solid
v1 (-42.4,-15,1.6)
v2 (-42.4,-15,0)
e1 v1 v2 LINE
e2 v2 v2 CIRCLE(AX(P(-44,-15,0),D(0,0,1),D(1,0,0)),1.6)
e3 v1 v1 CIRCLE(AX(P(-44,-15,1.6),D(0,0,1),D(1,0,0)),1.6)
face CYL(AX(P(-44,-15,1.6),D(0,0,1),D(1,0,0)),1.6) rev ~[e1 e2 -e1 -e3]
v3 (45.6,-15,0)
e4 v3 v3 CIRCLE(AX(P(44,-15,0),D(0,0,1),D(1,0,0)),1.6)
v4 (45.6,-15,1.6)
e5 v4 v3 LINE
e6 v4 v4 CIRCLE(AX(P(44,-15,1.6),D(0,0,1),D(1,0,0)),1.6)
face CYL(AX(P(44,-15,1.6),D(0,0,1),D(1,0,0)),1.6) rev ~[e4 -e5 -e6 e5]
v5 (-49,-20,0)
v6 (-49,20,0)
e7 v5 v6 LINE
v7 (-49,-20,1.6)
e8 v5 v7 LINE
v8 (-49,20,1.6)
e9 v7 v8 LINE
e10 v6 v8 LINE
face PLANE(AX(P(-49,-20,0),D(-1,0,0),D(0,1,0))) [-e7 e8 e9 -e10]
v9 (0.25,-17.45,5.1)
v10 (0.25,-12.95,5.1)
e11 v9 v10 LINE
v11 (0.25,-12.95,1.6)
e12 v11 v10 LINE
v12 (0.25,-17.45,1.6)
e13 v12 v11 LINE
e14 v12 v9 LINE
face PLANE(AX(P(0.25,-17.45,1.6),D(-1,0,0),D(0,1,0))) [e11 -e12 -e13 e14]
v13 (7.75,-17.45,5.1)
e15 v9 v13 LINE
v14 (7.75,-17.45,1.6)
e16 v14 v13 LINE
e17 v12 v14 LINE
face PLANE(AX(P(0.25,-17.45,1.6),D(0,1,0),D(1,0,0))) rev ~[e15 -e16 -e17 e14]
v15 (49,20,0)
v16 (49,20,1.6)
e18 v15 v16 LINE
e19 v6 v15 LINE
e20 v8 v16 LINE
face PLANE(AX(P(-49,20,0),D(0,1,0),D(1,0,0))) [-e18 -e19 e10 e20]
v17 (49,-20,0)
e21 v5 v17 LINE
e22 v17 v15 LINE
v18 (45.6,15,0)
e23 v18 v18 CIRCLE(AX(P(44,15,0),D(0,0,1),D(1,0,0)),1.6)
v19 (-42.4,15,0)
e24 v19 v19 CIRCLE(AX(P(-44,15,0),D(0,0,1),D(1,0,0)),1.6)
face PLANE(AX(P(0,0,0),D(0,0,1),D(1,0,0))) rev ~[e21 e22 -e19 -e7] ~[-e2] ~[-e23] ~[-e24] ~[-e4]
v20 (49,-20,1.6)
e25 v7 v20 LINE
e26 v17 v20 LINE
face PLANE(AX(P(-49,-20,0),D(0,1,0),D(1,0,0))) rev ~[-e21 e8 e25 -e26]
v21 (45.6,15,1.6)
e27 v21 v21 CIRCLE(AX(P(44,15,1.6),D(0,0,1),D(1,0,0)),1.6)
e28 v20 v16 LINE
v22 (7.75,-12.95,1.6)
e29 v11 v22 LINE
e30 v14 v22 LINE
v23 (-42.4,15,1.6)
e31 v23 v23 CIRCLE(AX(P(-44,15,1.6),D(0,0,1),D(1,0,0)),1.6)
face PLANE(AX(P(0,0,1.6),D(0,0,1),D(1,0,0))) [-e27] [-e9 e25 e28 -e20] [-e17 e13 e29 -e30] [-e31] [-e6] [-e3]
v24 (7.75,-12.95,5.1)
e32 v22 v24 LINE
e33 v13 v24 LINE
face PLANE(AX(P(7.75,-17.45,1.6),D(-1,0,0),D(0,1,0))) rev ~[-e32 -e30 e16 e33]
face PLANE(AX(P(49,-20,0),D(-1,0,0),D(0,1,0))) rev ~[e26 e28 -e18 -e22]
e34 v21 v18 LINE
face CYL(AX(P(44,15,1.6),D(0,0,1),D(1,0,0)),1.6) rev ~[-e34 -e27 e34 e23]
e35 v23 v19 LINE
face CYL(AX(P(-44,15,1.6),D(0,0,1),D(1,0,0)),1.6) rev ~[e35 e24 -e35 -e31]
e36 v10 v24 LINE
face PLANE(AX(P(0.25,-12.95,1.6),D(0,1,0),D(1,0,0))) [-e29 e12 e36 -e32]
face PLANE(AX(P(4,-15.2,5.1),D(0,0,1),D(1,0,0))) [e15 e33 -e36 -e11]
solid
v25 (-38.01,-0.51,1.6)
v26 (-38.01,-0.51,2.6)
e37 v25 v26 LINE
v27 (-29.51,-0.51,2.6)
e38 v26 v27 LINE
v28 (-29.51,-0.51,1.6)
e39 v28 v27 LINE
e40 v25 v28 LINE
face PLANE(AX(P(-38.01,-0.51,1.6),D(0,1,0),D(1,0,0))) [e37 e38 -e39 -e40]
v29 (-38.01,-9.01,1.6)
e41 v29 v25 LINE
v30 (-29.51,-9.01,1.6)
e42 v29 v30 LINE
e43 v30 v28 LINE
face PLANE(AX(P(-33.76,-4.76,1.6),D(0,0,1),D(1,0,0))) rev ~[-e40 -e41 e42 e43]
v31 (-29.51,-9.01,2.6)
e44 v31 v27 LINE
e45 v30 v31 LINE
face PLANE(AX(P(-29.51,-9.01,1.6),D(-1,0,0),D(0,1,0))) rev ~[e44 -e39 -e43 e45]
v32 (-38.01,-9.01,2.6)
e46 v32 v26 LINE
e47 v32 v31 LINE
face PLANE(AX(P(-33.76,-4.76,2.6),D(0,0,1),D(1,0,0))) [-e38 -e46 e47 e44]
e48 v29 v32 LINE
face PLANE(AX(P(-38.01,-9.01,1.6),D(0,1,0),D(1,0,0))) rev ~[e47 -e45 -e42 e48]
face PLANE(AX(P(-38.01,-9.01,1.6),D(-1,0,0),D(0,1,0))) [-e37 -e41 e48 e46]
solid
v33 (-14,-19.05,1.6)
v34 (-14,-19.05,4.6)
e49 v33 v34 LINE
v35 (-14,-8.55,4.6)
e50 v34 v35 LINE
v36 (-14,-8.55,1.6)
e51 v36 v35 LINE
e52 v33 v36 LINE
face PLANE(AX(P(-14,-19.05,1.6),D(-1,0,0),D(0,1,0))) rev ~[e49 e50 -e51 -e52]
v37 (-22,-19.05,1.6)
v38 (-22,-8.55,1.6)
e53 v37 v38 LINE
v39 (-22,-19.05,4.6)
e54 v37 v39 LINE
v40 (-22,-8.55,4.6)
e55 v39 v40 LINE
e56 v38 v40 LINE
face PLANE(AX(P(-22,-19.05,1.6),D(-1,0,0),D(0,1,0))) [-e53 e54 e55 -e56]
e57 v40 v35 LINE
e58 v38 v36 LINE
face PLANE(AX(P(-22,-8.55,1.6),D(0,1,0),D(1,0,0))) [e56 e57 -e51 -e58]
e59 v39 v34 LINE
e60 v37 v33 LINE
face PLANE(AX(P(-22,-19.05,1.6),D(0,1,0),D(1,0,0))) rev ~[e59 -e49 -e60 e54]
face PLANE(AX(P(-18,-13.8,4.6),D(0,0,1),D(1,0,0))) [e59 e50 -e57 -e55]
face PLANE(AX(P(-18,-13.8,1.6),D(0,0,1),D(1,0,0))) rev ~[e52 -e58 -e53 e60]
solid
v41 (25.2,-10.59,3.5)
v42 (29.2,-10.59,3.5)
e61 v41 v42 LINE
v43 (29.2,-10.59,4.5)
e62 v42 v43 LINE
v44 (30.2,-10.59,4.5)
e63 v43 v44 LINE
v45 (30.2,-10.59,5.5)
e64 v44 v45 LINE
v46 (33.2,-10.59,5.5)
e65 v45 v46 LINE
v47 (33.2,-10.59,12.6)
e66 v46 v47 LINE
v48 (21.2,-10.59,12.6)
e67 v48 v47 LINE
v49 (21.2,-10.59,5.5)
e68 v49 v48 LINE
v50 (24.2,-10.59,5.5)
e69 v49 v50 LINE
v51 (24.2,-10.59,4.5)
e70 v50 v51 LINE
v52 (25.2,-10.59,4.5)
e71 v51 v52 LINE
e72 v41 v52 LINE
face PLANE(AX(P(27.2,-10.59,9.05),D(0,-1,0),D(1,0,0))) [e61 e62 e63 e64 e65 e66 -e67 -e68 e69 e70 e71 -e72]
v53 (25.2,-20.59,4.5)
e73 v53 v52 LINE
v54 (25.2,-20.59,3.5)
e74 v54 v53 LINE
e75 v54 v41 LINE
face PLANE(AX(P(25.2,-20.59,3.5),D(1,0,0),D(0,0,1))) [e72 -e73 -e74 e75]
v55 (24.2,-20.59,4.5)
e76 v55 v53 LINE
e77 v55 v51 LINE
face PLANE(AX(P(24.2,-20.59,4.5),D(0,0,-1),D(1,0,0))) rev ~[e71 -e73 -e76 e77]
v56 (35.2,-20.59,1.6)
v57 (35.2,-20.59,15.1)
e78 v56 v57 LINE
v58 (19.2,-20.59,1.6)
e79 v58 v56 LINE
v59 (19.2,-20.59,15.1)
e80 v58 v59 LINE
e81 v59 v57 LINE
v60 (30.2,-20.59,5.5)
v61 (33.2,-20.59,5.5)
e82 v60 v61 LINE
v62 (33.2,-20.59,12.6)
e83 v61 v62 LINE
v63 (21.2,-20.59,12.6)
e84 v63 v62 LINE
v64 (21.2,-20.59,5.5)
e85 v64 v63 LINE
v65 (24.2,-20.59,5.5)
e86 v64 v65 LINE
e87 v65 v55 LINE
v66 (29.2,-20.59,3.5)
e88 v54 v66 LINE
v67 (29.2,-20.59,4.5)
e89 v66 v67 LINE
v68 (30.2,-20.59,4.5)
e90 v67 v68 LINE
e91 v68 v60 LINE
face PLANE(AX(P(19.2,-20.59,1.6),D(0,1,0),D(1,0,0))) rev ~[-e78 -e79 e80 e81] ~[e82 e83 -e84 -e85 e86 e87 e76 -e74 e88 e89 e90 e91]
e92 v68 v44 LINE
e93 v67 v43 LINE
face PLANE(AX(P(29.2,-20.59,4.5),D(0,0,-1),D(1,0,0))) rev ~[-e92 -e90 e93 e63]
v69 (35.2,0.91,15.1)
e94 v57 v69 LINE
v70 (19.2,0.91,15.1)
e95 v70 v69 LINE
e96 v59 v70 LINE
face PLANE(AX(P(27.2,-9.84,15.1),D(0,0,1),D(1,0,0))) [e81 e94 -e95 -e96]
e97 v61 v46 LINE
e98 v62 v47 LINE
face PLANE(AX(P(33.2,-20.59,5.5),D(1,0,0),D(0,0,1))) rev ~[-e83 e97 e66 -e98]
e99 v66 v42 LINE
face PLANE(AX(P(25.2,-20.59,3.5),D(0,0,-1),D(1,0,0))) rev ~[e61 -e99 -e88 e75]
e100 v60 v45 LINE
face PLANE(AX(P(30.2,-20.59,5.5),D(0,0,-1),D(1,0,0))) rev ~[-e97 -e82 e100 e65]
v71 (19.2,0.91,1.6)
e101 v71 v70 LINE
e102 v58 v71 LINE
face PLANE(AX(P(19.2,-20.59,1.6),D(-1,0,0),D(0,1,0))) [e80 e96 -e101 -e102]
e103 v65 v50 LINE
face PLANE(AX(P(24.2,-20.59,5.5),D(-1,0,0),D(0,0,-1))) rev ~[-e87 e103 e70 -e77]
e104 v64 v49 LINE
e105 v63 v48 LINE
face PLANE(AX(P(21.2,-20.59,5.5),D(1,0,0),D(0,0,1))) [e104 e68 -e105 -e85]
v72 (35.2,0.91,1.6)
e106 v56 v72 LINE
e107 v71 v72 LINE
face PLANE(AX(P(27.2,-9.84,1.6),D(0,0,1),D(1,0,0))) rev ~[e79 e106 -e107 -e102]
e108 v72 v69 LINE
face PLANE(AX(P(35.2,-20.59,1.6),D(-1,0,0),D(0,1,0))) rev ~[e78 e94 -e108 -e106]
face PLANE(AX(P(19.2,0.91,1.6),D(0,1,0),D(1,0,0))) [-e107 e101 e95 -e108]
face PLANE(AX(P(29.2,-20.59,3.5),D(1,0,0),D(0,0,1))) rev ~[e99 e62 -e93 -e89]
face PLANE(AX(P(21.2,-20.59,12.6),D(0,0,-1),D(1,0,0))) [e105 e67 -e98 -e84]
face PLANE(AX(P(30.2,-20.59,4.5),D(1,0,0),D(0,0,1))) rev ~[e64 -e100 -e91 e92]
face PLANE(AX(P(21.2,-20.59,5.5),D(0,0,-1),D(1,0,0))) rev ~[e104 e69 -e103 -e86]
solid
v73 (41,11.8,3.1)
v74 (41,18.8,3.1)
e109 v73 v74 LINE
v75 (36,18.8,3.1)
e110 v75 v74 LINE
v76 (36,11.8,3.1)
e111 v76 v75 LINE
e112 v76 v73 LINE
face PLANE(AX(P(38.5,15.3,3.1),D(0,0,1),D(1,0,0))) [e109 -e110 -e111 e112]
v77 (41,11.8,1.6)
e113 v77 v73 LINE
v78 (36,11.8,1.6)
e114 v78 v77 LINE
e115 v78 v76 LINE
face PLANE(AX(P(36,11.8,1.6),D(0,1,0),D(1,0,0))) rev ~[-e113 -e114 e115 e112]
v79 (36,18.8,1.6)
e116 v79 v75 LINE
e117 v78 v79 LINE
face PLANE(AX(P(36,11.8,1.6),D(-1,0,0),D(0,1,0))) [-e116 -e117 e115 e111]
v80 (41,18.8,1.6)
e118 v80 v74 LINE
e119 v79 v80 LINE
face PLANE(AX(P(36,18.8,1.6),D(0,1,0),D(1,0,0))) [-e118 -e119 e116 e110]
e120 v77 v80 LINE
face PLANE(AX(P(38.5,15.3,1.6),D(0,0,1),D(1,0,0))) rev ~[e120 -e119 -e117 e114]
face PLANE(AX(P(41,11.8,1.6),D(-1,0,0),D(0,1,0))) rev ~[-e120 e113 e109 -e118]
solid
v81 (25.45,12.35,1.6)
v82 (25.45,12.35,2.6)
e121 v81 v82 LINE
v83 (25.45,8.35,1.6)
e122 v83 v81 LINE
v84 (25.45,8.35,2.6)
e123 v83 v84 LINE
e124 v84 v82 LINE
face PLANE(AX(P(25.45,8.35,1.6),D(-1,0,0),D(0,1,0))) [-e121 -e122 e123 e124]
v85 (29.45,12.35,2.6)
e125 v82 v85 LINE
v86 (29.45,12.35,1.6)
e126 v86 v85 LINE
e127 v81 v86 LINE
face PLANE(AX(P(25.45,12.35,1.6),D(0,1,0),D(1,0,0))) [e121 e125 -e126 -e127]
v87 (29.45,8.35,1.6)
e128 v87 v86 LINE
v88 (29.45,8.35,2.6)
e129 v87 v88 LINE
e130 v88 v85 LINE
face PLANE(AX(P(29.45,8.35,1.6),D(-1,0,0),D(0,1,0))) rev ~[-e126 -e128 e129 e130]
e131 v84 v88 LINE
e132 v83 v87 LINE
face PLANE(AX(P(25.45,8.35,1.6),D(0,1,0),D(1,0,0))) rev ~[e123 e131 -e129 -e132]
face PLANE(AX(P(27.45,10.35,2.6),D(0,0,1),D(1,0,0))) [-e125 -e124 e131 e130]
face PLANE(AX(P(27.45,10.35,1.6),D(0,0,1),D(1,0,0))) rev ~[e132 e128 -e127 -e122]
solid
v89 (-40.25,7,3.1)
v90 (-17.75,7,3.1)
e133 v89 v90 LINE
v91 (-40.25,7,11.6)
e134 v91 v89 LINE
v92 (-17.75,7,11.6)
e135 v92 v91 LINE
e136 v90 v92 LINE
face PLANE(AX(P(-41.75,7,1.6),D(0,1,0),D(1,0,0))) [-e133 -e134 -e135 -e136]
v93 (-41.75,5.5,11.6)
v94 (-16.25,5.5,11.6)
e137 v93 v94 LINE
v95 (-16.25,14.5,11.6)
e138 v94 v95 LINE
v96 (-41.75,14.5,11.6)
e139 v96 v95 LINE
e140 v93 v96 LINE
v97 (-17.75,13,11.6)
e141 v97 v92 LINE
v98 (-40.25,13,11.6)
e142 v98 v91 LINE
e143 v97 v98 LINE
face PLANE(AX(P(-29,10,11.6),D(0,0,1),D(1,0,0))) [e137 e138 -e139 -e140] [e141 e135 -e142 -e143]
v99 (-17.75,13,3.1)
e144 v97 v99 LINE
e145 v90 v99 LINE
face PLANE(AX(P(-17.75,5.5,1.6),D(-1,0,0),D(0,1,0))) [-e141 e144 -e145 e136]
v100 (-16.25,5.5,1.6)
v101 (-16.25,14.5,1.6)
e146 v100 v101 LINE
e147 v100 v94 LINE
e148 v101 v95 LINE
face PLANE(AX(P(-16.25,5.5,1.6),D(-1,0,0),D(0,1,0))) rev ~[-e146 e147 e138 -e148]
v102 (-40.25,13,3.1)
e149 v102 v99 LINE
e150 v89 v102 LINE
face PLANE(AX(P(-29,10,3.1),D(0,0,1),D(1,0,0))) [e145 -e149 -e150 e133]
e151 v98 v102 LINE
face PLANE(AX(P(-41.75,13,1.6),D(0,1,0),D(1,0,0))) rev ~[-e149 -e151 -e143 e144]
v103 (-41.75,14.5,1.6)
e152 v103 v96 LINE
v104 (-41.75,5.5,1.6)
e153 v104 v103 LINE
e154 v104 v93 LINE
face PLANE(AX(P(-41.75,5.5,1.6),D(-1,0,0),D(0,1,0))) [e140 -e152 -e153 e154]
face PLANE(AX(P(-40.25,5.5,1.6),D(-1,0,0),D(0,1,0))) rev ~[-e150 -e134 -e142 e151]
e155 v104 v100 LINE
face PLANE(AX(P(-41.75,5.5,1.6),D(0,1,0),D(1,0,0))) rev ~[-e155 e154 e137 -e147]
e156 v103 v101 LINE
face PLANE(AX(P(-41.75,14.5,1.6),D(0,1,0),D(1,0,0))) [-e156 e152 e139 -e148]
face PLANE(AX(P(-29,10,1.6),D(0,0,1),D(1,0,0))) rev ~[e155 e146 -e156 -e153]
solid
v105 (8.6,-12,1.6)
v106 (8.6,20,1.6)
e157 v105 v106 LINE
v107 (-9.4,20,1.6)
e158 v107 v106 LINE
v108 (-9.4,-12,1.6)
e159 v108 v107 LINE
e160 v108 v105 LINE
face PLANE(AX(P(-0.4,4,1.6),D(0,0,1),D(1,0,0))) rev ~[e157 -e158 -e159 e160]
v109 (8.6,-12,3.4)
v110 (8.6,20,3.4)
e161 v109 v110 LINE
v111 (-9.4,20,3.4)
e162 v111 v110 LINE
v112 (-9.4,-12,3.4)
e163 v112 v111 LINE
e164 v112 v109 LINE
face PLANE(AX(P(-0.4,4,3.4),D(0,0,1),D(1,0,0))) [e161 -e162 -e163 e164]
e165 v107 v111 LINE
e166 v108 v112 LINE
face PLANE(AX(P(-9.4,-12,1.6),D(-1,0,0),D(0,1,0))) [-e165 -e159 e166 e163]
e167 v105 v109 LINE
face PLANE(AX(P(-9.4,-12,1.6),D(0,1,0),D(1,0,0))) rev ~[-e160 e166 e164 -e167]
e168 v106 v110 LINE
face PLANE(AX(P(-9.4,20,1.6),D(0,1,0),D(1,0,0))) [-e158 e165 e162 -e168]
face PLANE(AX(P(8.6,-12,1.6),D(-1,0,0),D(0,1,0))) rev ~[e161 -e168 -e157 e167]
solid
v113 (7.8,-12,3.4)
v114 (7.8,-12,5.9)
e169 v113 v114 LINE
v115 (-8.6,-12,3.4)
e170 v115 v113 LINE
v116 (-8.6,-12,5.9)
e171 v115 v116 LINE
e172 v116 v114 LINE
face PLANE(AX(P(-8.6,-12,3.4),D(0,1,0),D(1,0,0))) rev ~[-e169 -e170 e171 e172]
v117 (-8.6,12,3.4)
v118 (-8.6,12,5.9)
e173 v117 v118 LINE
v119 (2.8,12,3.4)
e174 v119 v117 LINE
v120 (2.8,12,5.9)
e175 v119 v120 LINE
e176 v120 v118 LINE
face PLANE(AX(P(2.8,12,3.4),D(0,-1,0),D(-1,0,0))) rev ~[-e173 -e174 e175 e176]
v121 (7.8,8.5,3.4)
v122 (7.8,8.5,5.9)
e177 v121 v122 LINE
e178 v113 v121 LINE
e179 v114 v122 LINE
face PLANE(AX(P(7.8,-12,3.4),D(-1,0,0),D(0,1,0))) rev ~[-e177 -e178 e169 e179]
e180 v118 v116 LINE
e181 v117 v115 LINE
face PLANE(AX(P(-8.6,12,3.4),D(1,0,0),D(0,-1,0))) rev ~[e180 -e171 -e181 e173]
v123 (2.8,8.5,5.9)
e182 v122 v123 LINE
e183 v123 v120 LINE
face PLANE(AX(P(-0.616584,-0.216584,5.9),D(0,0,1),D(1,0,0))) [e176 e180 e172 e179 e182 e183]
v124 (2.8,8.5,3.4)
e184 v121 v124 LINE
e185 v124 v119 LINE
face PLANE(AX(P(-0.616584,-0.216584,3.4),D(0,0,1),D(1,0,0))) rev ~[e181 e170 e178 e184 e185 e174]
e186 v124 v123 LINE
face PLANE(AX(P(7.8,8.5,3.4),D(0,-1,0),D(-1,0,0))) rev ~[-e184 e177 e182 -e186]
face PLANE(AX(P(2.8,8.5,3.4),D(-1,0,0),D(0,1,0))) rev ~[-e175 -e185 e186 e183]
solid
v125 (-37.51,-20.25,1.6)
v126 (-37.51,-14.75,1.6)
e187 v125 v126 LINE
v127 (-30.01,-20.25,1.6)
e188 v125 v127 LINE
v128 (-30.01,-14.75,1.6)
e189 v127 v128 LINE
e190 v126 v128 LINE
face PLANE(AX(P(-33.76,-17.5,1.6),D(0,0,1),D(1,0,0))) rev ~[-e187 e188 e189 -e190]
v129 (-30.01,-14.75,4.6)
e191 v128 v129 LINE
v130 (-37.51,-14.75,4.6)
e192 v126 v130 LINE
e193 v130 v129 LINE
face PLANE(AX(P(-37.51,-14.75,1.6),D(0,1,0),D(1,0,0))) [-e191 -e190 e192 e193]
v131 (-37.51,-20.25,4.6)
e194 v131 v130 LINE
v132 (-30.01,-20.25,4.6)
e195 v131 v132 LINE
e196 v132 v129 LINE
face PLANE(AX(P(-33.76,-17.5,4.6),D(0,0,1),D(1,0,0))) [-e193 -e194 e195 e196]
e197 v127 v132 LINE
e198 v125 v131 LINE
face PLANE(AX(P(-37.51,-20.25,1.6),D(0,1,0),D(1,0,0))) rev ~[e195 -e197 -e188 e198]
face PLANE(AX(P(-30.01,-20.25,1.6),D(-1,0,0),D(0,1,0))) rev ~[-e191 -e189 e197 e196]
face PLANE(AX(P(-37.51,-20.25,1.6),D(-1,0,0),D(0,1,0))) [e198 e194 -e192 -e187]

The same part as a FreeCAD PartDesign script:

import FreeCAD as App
import Part
import Sketcher


def faces_at(feature, points):
    """Names of the faces that lie closest to the given points."""
    faces = feature.Shape.Faces
    near = lambda p: min(range(len(faces)), key=lambda i: faces[i].distToShape(Part.Vertex(*p))[0])
    return sorted({f"Face{near(p) + 1}" for p in points})

doc = App.newDocument("Part")
params = doc.addObject("Spreadsheet::Sheet", "Params")
for row, (alias, value) in enumerate([
    ("sketch1_width", "98 mm"),
    ("sketch1_height", "40 mm"),
    ("pad1_length", "1.6 mm"),
    ("sketch2_diameter", "3.2 mm"),
    ("sketch3_width", "7.5 mm"),
    ("sketch3_height", "4.5 mm"),
    ("pad2_length", "3.5 mm"),
    ("sketch4_height", "9 mm"),
    ("sketch4_width", "25.5 mm"),
    ("pad3_length", "10 mm"),
    ("thickness_wall", "1.5 mm"),
    ("sketch5_width", "8.5 mm"),
    ("pad4_length", "1 mm"),
    ("sketch6_width", "7.5 mm"),
    ("sketch6_height", "5.5 mm"),
    ("pad5_length", "3 mm"),
    ("sketch7_width", "8 mm"),
    ("sketch7_height", "10.5 mm"),
    ("pad6_length", "3 mm"),
    ("sketch8_width", "18 mm"),
    ("sketch8_height", "32 mm"),
    ("pad7_length", "1.8 mm"),
    ("sketch9_width", "5 mm"),
    ("sketch9_height", "24 mm"),
    ("sketch9_width2", "16.4 mm"),
    ("sketch9_height2", "20.5 mm"),
    ("pad8_length", "2.5 mm"),
    ("sketch10_width", "16 mm"),
    ("sketch10_height", "21.5 mm"),
    ("pad9_length", "13.5 mm"),
    ("sketch11_width", "3 mm"),
    ("sketch11_width2", "1 mm"),
    ("sketch11_width3", "4 mm"),
    ("sketch11_height", "7.1 mm"),
    ("pocket2_length", "10 mm"),
    ("sketch12_width", "4 mm"),
    ("pad10_length", "1 mm"),
    ("sketch13_width", "5 mm"),
    ("sketch13_height", "7 mm"),
    ("pad11_length", "1.5 mm"),
], start=1):
    params.set(f"A{row}", alias)
    params.set(f"B{row}", "=" + value)
    params.setAlias(f"B{row}", alias)

body = doc.addObject("PartDesign::Body", "Body")

# Sketch on XY plane
sketch1 = body.newObject("Sketcher::SketchObject", "Sketch")
sketch1.AttachmentSupport = (doc.getObject("XY_Plane"), [""])
sketch1.MapMode = "FlatFace"
sketch1.addGeometry([
    Part.LineSegment(App.Vector(-49, 20, 0), App.Vector(-49, -20, 0)),
    Part.LineSegment(App.Vector(-49, -20, 0), App.Vector(49, -20, 0)),
    Part.LineSegment(App.Vector(49, -20, 0), App.Vector(49, 20, 0)),
    Part.LineSegment(App.Vector(49, 20, 0), App.Vector(-49, 20, 0)),
], False)
sketch1.addConstraint([
    Sketcher.Constraint("Coincident", 0, 2, 1, 1),
    Sketcher.Constraint("Coincident", 1, 2, 2, 1),
    Sketcher.Constraint("Coincident", 2, 2, 3, 1),
    Sketcher.Constraint("Coincident", 3, 2, 0, 1),
    Sketcher.Constraint("Vertical", 0),
    Sketcher.Constraint("Horizontal", 1),
    Sketcher.Constraint("Vertical", 2),
    Sketcher.Constraint("Horizontal", 3),
    Sketcher.Constraint("Symmetric", 0, 2, 2, 2, -1, 1),
    Sketcher.Constraint("DistanceX", 1, 1, 1, 2, 98.0),
    Sketcher.Constraint("DistanceY", 0, 2, 0, 1, 40.0),
])
sketch1.setExpression("Constraints[9]", "Params.sketch1_width")
sketch1.setExpression("Constraints[10]", "Params.sketch1_height")
pad1 = body.newObject("PartDesign::Pad", "Pad")
pad1.Profile = sketch1
pad1.setExpression("Length", "Params.pad1_length")

# Sketch on XY plane
sketch2 = body.newObject("Sketcher::SketchObject", "Sketch001")
sketch2.AttachmentSupport = (doc.getObject("XY_Plane"), [""])
sketch2.MapMode = "FlatFace"
sketch2.AttachmentOffset = App.Placement(App.Vector(0, 0, 1.6), App.Rotation())
sketch2.addGeometry([
    Part.Circle(App.Vector(-44, -15, 0), App.Vector(0, 0, 1), 1.6),
    Part.Circle(App.Vector(-44, 15, 0), App.Vector(0, 0, 1), 1.6),
    Part.Circle(App.Vector(44, 15, 0), App.Vector(0, 0, 1), 1.6),
    Part.Circle(App.Vector(44, -15, 0), App.Vector(0, 0, 1), 1.6),
], False)
sketch2.addConstraint([
    Sketcher.Constraint("Equal", 0, 1),
    Sketcher.Constraint("Equal", 1, 2),
    Sketcher.Constraint("Equal", 2, 3),
    Sketcher.Constraint("Symmetric", 0, 3, 2, 3, -1, 1),
    Sketcher.Constraint("Symmetric", 1, 3, 3, 3, -1, 1),
    Sketcher.Constraint("Symmetric", 1, 3, 2, 3, -2),
    Sketcher.Constraint("Diameter", 0, 3.2),
    Sketcher.Constraint("DistanceX", 0, 3, -1, 1, 44.0),
    Sketcher.Constraint("DistanceY", 0, 3, -1, 1, 15.0),
])
sketch2.setExpression("Constraints[6]", "Params.sketch2_diameter")
pocket1 = body.newObject("PartDesign::Pocket", "Pocket")
pocket1.Profile = sketch2
pocket1.Type = "ThroughAll"
pocket1.Midplane = True

# Sketch on XY plane
sketch3 = body.newObject("Sketcher::SketchObject", "Sketch002")
sketch3.AttachmentSupport = (doc.getObject("XY_Plane"), [""])
sketch3.MapMode = "FlatFace"
sketch3.AttachmentOffset = App.Placement(App.Vector(0, 0, 1.6), App.Rotation())
sketch3.addGeometry([
    Part.LineSegment(App.Vector(0.2, -12.9, 0), App.Vector(0.2, -17.4, 0)),
    Part.LineSegment(App.Vector(0.2, -17.4, 0), App.Vector(7.8, -17.4, 0)),
    Part.LineSegment(App.Vector(7.8, -17.4, 0), App.Vector(7.8, -12.9, 0)),
    Part.LineSegment(App.Vector(7.8, -12.9, 0), App.Vector(0.2, -12.9, 0)),
], False)
sketch3.addConstraint([
    Sketcher.Constraint("Coincident", 0, 2, 1, 1),
    Sketcher.Constraint("Coincident", 1, 2, 2, 1),
    Sketcher.Constraint("Coincident", 2, 2, 3, 1),
    Sketcher.Constraint("Coincident", 3, 2, 0, 1),
    Sketcher.Constraint("Vertical", 0),
    Sketcher.Constraint("Horizontal", 1),
    Sketcher.Constraint("Vertical", 2),
    Sketcher.Constraint("Horizontal", 3),
    Sketcher.Constraint("DistanceX", 1, 1, 1, 2, 7.5),
    Sketcher.Constraint("DistanceY", 0, 2, 0, 1, 4.5),
    Sketcher.Constraint("DistanceX", -1, 1, 0, 2, 0.25),
    Sketcher.Constraint("DistanceY", 0, 2, -1, 1, 17.45),
])
sketch3.setExpression("Constraints[8]", "Params.sketch3_width")
sketch3.setExpression("Constraints[9]", "Params.sketch3_height")
pad2 = body.newObject("PartDesign::Pad", "Pad001")
pad2.Profile = sketch3
pad2.setExpression("Length", "Params.pad2_length")
body2 = doc.addObject("PartDesign::Body", "Body001")

# Sketch on XY plane
sketch4 = body2.newObject("Sketcher::SketchObject", "Sketch003")
sketch4.AttachmentSupport = (doc.getObject("XY_Plane001"), [""])
sketch4.MapMode = "FlatFace"
sketch4.AttachmentOffset = App.Placement(App.Vector(0, 0, 1.6), App.Rotation())
sketch4.addGeometry([
    Part.LineSegment(App.Vector(-42, 14, 0), App.Vector(-42, 6, 0)),
    Part.LineSegment(App.Vector(-42, 6, 0), App.Vector(-16, 6, 0)),
    Part.LineSegment(App.Vector(-16, 6, 0), App.Vector(-16, 14, 0)),
    Part.LineSegment(App.Vector(-16, 14, 0), App.Vector(-42, 14, 0)),
], False)
sketch4.addConstraint([
    Sketcher.Constraint("Coincident", 0, 2, 1, 1),
    Sketcher.Constraint("Coincident", 1, 2, 2, 1),
    Sketcher.Constraint("Coincident", 2, 2, 3, 1),
    Sketcher.Constraint("Coincident", 3, 2, 0, 1),
    Sketcher.Constraint("Vertical", 0),
    Sketcher.Constraint("Horizontal", 1),
    Sketcher.Constraint("Vertical", 2),
    Sketcher.Constraint("Horizontal", 3),
    Sketcher.Constraint("DistanceY", 0, 2, 0, 1, 9.0),
    Sketcher.Constraint("DistanceX", 1, 1, 1, 2, 25.5),
    Sketcher.Constraint("DistanceY", -1, 1, 0, 2, 5.5),
    Sketcher.Constraint("DistanceX", 0, 2, -1, 1, 41.75),
])
sketch4.setExpression("Constraints[8]", "Params.sketch4_height")
sketch4.setExpression("Constraints[9]", "Params.sketch4_width")
pad3 = body2.newObject("PartDesign::Pad", "Pad002")
pad3.Profile = sketch4
pad3.setExpression("Length", "Params.pad3_length")
doc.recompute()

thickness = body2.newObject("PartDesign::Thickness", "Thickness")
thickness.Base = (pad3, faces_at(pad3, [(-29, 10, 11.6)]))
thickness.setExpression("Value", "Params.thickness_wall")
thickness.Reversed = True
thickness.Join = "Intersection"
body3 = doc.addObject("PartDesign::Body", "Body002")

# Sketch on XY plane
sketch5 = body3.newObject("Sketcher::SketchObject", "Sketch004")
sketch5.AttachmentSupport = (doc.getObject("XY_Plane002"), [""])
sketch5.MapMode = "FlatFace"
sketch5.AttachmentOffset = App.Placement(App.Vector(0, 0, 1.6), App.Rotation())
sketch5.addGeometry([
    Part.LineSegment(App.Vector(-38, -1, 0), App.Vector(-38, -9, 0)),
    Part.LineSegment(App.Vector(-38, -9, 0), App.Vector(-30, -9, 0)),
    Part.LineSegment(App.Vector(-30, -9, 0), App.Vector(-30, -1, 0)),
    Part.LineSegment(App.Vector(-30, -1, 0), App.Vector(-38, -1, 0)),
], False)
sketch5.addConstraint([
    Sketcher.Constraint("Coincident", 0, 2, 1, 1),
    Sketcher.Constraint("Coincident", 1, 2, 2, 1),
    Sketcher.Constraint("Coincident", 2, 2, 3, 1),
    Sketcher.Constraint("Coincident", 3, 2, 0, 1),
    Sketcher.Constraint("Vertical", 0),
    Sketcher.Constraint("Horizontal", 1),
    Sketcher.Constraint("Vertical", 2),
    Sketcher.Constraint("Horizontal", 3),
    Sketcher.Constraint("Equal", 3, 0),
    Sketcher.Constraint("DistanceX", 1, 1, 1, 2, 8.5),
    Sketcher.Constraint("DistanceX", 0, 2, -1, 1, 38.01),
    Sketcher.Constraint("DistanceY", 0, 2, -1, 1, 9.01),
])
sketch5.setExpression("Constraints[9]", "Params.sketch5_width")
pad4 = body3.newObject("PartDesign::Pad", "Pad003")
pad4.Profile = sketch5
pad4.setExpression("Length", "Params.pad4_length")
body4 = doc.addObject("PartDesign::Body", "Body003")

# Sketch on XY plane
sketch6 = body4.newObject("Sketcher::SketchObject", "Sketch005")
sketch6.AttachmentSupport = (doc.getObject("XY_Plane003"), [""])
sketch6.MapMode = "FlatFace"
sketch6.AttachmentOffset = App.Placement(App.Vector(0, 0, 1.6), App.Rotation())
sketch6.addGeometry([
    Part.LineSegment(App.Vector(-38, -15, 0), App.Vector(-38, -20, 0)),
    Part.LineSegment(App.Vector(-38, -20, 0), App.Vector(-30, -20, 0)),
    Part.LineSegment(App.Vector(-30, -20, 0), App.Vector(-30, -15, 0)),
    Part.LineSegment(App.Vector(-30, -15, 0), App.Vector(-38, -15, 0)),
], False)
sketch6.addConstraint([
    Sketcher.Constraint("Coincident", 0, 2, 1, 1),
    Sketcher.Constraint("Coincident", 1, 2, 2, 1),
    Sketcher.Constraint("Coincident", 2, 2, 3, 1),
    Sketcher.Constraint("Coincident", 3, 2, 0, 1),
    Sketcher.Constraint("Vertical", 0),
    Sketcher.Constraint("Horizontal", 1),
    Sketcher.Constraint("Vertical", 2),
    Sketcher.Constraint("Horizontal", 3),
    Sketcher.Constraint("DistanceX", 1, 1, 1, 2, 7.5),
    Sketcher.Constraint("DistanceY", 0, 2, 0, 1, 5.5),
    Sketcher.Constraint("DistanceX", 0, 2, -1, 1, 37.51),
    Sketcher.Constraint("DistanceY", 0, 2, -1, 1, 20.25),
])
sketch6.setExpression("Constraints[8]", "Params.sketch6_width")
sketch6.setExpression("Constraints[9]", "Params.sketch6_height")
pad5 = body4.newObject("PartDesign::Pad", "Pad004")
pad5.Profile = sketch6
pad5.setExpression("Length", "Params.pad5_length")
body5 = doc.addObject("PartDesign::Body", "Body004")

# Sketch on XY plane
sketch7 = body5.newObject("Sketcher::SketchObject", "Sketch006")
sketch7.AttachmentSupport = (doc.getObject("XY_Plane004"), [""])
sketch7.MapMode = "FlatFace"
sketch7.AttachmentOffset = App.Placement(App.Vector(0, 0, 1.6), App.Rotation())
sketch7.addGeometry([
    Part.LineSegment(App.Vector(-22, -9, 0), App.Vector(-22, -19, 0)),
    Part.LineSegment(App.Vector(-22, -19, 0), App.Vector(-14, -19, 0)),
    Part.LineSegment(App.Vector(-14, -19, 0), App.Vector(-14, -9, 0)),
    Part.LineSegment(App.Vector(-14, -9, 0), App.Vector(-22, -9, 0)),
], False)
sketch7.addConstraint([
    Sketcher.Constraint("Coincident", 0, 2, 1, 1),
    Sketcher.Constraint("Coincident", 1, 2, 2, 1),
    Sketcher.Constraint("Coincident", 2, 2, 3, 1),
    Sketcher.Constraint("Coincident", 3, 2, 0, 1),
    Sketcher.Constraint("Vertical", 0),
    Sketcher.Constraint("Horizontal", 1),
    Sketcher.Constraint("Vertical", 2),
    Sketcher.Constraint("Horizontal", 3),
    Sketcher.Constraint("DistanceX", 1, 1, 1, 2, 8.0),
    Sketcher.Constraint("DistanceY", 0, 2, 0, 1, 10.5),
    Sketcher.Constraint("DistanceX", 0, 2, -1, 1, 22.0),
    Sketcher.Constraint("DistanceY", 0, 2, -1, 1, 19.05),
])
sketch7.setExpression("Constraints[8]", "Params.sketch7_width")
sketch7.setExpression("Constraints[9]", "Params.sketch7_height")
pad6 = body5.newObject("PartDesign::Pad", "Pad005")
pad6.Profile = sketch7
pad6.setExpression("Length", "Params.pad6_length")
body6 = doc.addObject("PartDesign::Body", "Body005")

# Sketch on XY plane
sketch8 = body6.newObject("Sketcher::SketchObject", "Sketch007")
sketch8.AttachmentSupport = (doc.getObject("XY_Plane005"), [""])
sketch8.MapMode = "FlatFace"
sketch8.AttachmentOffset = App.Placement(App.Vector(0, 0, 1.6), App.Rotation())
sketch8.addGeometry([
    Part.LineSegment(App.Vector(-9, 20, 0), App.Vector(-9, -12, 0)),
    Part.LineSegment(App.Vector(-9, -12, 0), App.Vector(9, -12, 0)),
    Part.LineSegment(App.Vector(9, -12, 0), App.Vector(9, 20, 0)),
    Part.LineSegment(App.Vector(9, 20, 0), App.Vector(-9, 20, 0)),
], False)
sketch8.addConstraint([
    Sketcher.Constraint("Coincident", 0, 2, 1, 1),
    Sketcher.Constraint("Coincident", 1, 2, 2, 1),
    Sketcher.Constraint("Coincident", 2, 2, 3, 1),
    Sketcher.Constraint("Coincident", 3, 2, 0, 1),
    Sketcher.Constraint("Vertical", 0),
    Sketcher.Constraint("Horizontal", 1),
    Sketcher.Constraint("Vertical", 2),
    Sketcher.Constraint("Horizontal", 3),
    Sketcher.Constraint("DistanceX", 1, 1, 1, 2, 18.0),
    Sketcher.Constraint("DistanceY", 0, 2, 0, 1, 32.0),
    Sketcher.Constraint("DistanceY", 0, 2, -1, 1, 12.0),
    Sketcher.Constraint("DistanceX", 0, 2, -1, 1, 9.4),
])
sketch8.setExpression("Constraints[8]", "Params.sketch8_width")
sketch8.setExpression("Constraints[9]", "Params.sketch8_height")
pad7 = body6.newObject("PartDesign::Pad", "Pad006")
pad7.Profile = sketch8
pad7.setExpression("Length", "Params.pad7_length")
body7 = doc.addObject("PartDesign::Body", "Body006")

# Sketch on XY plane
sketch9 = body7.newObject("Sketcher::SketchObject", "Sketch008")
sketch9.AttachmentSupport = (doc.getObject("XY_Plane006"), [""])
sketch9.MapMode = "FlatFace"
sketch9.AttachmentOffset = App.Placement(App.Vector(0, 0, 3.4), App.Rotation())
sketch9.addGeometry([
    Part.LineSegment(App.Vector(-8.6, 12, 0), App.Vector(-8.6, -12, 0)),  # 0
    Part.LineSegment(App.Vector(-8.6, -12, 0), App.Vector(7.8, -12, 0)),  # 1
    Part.LineSegment(App.Vector(7.8, -12, 0), App.Vector(7.8, 8.5, 0)),  # 2
    Part.LineSegment(App.Vector(7.8, 8.5, 0), App.Vector(2.8, 8.5, 0)),  # 3
    Part.LineSegment(App.Vector(2.8, 8.5, 0), App.Vector(2.8, 12, 0)),  # 4
    Part.LineSegment(App.Vector(2.8, 12, 0), App.Vector(-8.6, 12, 0)),  # 5
], False)
sketch9.addConstraint([
    Sketcher.Constraint("Coincident", 0, 2, 1, 1),
    Sketcher.Constraint("Coincident", 1, 2, 2, 1),
    Sketcher.Constraint("Coincident", 2, 2, 3, 1),
    Sketcher.Constraint("Coincident", 3, 2, 4, 1),
    Sketcher.Constraint("Coincident", 4, 2, 5, 1),
    Sketcher.Constraint("Coincident", 5, 2, 0, 1),
    Sketcher.Constraint("Vertical", 0),
    Sketcher.Constraint("Horizontal", 1),
    Sketcher.Constraint("Vertical", 2),
    Sketcher.Constraint("Horizontal", 3),
    Sketcher.Constraint("Vertical", 4),
    Sketcher.Constraint("Horizontal", 5),
    Sketcher.Constraint("DistanceX", 3, 2, 3, 1, 5.0),
    Sketcher.Constraint("DistanceY", 0, 2, 0, 1, 24.0),
    Sketcher.Constraint("DistanceX", 1, 1, 1, 2, 16.4),
    Sketcher.Constraint("DistanceY", 2, 1, 2, 2, 20.5),
    Sketcher.Constraint("DistanceY", 0, 2, -1, 1, 12.0),
    Sketcher.Constraint("DistanceX", 0, 2, -1, 1, 8.6),
])
sketch9.setExpression("Constraints[12]", "Params.sketch9_width")
sketch9.setExpression("Constraints[13]", "Params.sketch9_height")
sketch9.setExpression("Constraints[14]", "Params.sketch9_width2")
sketch9.setExpression("Constraints[15]", "Params.sketch9_height2")
pad8 = body7.newObject("PartDesign::Pad", "Pad007")
pad8.Profile = sketch9
pad8.setExpression("Length", "Params.pad8_length")
body8 = doc.addObject("PartDesign::Body", "Body007")

# Sketch on XY plane
sketch10 = body8.newObject("Sketcher::SketchObject", "Sketch009")
sketch10.AttachmentSupport = (doc.getObject("XY_Plane007"), [""])
sketch10.MapMode = "FlatFace"
sketch10.AttachmentOffset = App.Placement(App.Vector(0, 0, 1.6), App.Rotation())
sketch10.addGeometry([
    Part.LineSegment(App.Vector(19, 1, 0), App.Vector(19, -21, 0)),
    Part.LineSegment(App.Vector(19, -21, 0), App.Vector(35, -21, 0)),
    Part.LineSegment(App.Vector(35, -21, 0), App.Vector(35, 1, 0)),
    Part.LineSegment(App.Vector(35, 1, 0), App.Vector(19, 1, 0)),
], False)
sketch10.addConstraint([
    Sketcher.Constraint("Coincident", 0, 2, 1, 1),
    Sketcher.Constraint("Coincident", 1, 2, 2, 1),
    Sketcher.Constraint("Coincident", 2, 2, 3, 1),
    Sketcher.Constraint("Coincident", 3, 2, 0, 1),
    Sketcher.Constraint("Vertical", 0),
    Sketcher.Constraint("Horizontal", 1),
    Sketcher.Constraint("Vertical", 2),
    Sketcher.Constraint("Horizontal", 3),
    Sketcher.Constraint("DistanceX", 1, 1, 1, 2, 16.0),
    Sketcher.Constraint("DistanceY", 0, 2, 0, 1, 21.5),
    Sketcher.Constraint("DistanceX", -1, 1, 0, 2, 19.2),
    Sketcher.Constraint("DistanceY", 0, 2, -1, 1, 20.59),
])
sketch10.setExpression("Constraints[8]", "Params.sketch10_width")
sketch10.setExpression("Constraints[9]", "Params.sketch10_height")
pad9 = body8.newObject("PartDesign::Pad", "Pad008")
pad9.Profile = sketch10
pad9.setExpression("Length", "Params.pad9_length")

# Sketch on XZ plane
sketch11 = body8.newObject("Sketcher::SketchObject", "Sketch010")
sketch11.AttachmentSupport = (doc.getObject("XZ_Plane007"), [""])
sketch11.MapMode = "FlatFace"
sketch11.AttachmentOffset = App.Placement(App.Vector(0, 0, 20.59), App.Rotation())
sketch11.addGeometry([
    Part.LineSegment(App.Vector(21.2, 12.6, 0), App.Vector(21.2, 5.5, 0)),  # 0
    Part.LineSegment(App.Vector(21.2, 5.5, 0), App.Vector(24.2, 5.5, 0)),  # 1
    Part.LineSegment(App.Vector(24.2, 5.5, 0), App.Vector(24.2, 4.5, 0)),  # 2
    Part.LineSegment(App.Vector(24.2, 4.5, 0), App.Vector(25.2, 4.5, 0)),  # 3
    Part.LineSegment(App.Vector(25.2, 4.5, 0), App.Vector(25.2, 3.5, 0)),  # 4
    Part.LineSegment(App.Vector(25.2, 3.5, 0), App.Vector(29.2, 3.5, 0)),  # 5
    Part.LineSegment(App.Vector(29.2, 3.5, 0), App.Vector(29.2, 4.5, 0)),  # 6
    Part.LineSegment(App.Vector(29.2, 4.5, 0), App.Vector(30.2, 4.5, 0)),  # 7
    Part.LineSegment(App.Vector(30.2, 4.5, 0), App.Vector(30.2, 5.5, 0)),  # 8
    Part.LineSegment(App.Vector(30.2, 5.5, 0), App.Vector(33.2, 5.5, 0)),  # 9
    Part.LineSegment(App.Vector(33.2, 5.5, 0), App.Vector(33.2, 12.6, 0)),  # 10
    Part.LineSegment(App.Vector(33.2, 12.6, 0), App.Vector(21.2, 12.6, 0)),  # 11
], False)
sketch11.addConstraint([
    Sketcher.Constraint("Coincident", 0, 2, 1, 1),
    Sketcher.Constraint("Coincident", 1, 2, 2, 1),
    Sketcher.Constraint("Coincident", 2, 2, 3, 1),
    Sketcher.Constraint("Coincident", 3, 2, 4, 1),
    Sketcher.Constraint("Coincident", 4, 2, 5, 1),
    Sketcher.Constraint("Coincident", 5, 2, 6, 1),
    Sketcher.Constraint("Coincident", 6, 2, 7, 1),
    Sketcher.Constraint("Coincident", 7, 2, 8, 1),
    Sketcher.Constraint("Coincident", 8, 2, 9, 1),
    Sketcher.Constraint("Coincident", 9, 2, 10, 1),
    Sketcher.Constraint("Coincident", 10, 2, 11, 1),
    Sketcher.Constraint("Coincident", 11, 2, 0, 1),
    Sketcher.Constraint("Vertical", 0),
    Sketcher.Constraint("Horizontal", 1),
    Sketcher.Constraint("Vertical", 2),
    Sketcher.Constraint("Horizontal", 3),
    Sketcher.Constraint("Vertical", 4),
    Sketcher.Constraint("Horizontal", 5),
    Sketcher.Constraint("Vertical", 6),
    Sketcher.Constraint("Horizontal", 7),
    Sketcher.Constraint("Vertical", 8),
    Sketcher.Constraint("Horizontal", 9),
    Sketcher.Constraint("Vertical", 10),
    Sketcher.Constraint("Horizontal", 11),
    Sketcher.Constraint("Horizontal", 3, 2, 6, 2),
    Sketcher.Constraint("Horizontal", 1, 2, 8, 2),
    Sketcher.Constraint("Equal", 3, 7),
    Sketcher.Constraint("Equal", 1, 9),
    Sketcher.Constraint("Equal", 7, 2),
    Sketcher.Constraint("Equal", 2, 4),
    Sketcher.Constraint("DistanceX", 1, 1, 1, 2, 3.0),
    Sketcher.Constraint("DistanceX", 3, 1, 3, 2, 1.0),
    Sketcher.Constraint("DistanceX", 5, 1, 5, 2, 4.0),
    Sketcher.Constraint("DistanceY", 0, 2, 0, 1, 7.1),
    Sketcher.Constraint("DistanceX", -1, 1, 0, 2, 21.2),
    Sketcher.Constraint("DistanceY", -1, 1, 0, 2, 5.5),
])
sketch11.setExpression("Constraints[30]", "Params.sketch11_width")
sketch11.setExpression("Constraints[31]", "Params.sketch11_width2")
sketch11.setExpression("Constraints[32]", "Params.sketch11_width3")
sketch11.setExpression("Constraints[33]", "Params.sketch11_height")
pocket2 = body8.newObject("PartDesign::Pocket", "Pocket001")
pocket2.Profile = sketch11
pocket2.setExpression("Length", "Params.pocket2_length")
body9 = doc.addObject("PartDesign::Body", "Body008")

# Sketch on XY plane
sketch12 = body9.newObject("Sketcher::SketchObject", "Sketch011")
sketch12.AttachmentSupport = (doc.getObject("XY_Plane008"), [""])
sketch12.MapMode = "FlatFace"
sketch12.AttachmentOffset = App.Placement(App.Vector(0, 0, 1.6), App.Rotation())
sketch12.addGeometry([
    Part.LineSegment(App.Vector(25.4, 12.3, 0), App.Vector(25.4, 8.3, 0)),
    Part.LineSegment(App.Vector(25.4, 8.3, 0), App.Vector(29.4, 8.3, 0)),
    Part.LineSegment(App.Vector(29.4, 8.3, 0), App.Vector(29.4, 12.3, 0)),
    Part.LineSegment(App.Vector(29.4, 12.3, 0), App.Vector(25.4, 12.3, 0)),
], False)
sketch12.addConstraint([
    Sketcher.Constraint("Coincident", 0, 2, 1, 1),
    Sketcher.Constraint("Coincident", 1, 2, 2, 1),
    Sketcher.Constraint("Coincident", 2, 2, 3, 1),
    Sketcher.Constraint("Coincident", 3, 2, 0, 1),
    Sketcher.Constraint("Vertical", 0),
    Sketcher.Constraint("Horizontal", 1),
    Sketcher.Constraint("Vertical", 2),
    Sketcher.Constraint("Horizontal", 3),
    Sketcher.Constraint("Equal", 3, 0),
    Sketcher.Constraint("DistanceX", 1, 1, 1, 2, 4.0),
    Sketcher.Constraint("DistanceX", -1, 1, 0, 2, 25.45),
    Sketcher.Constraint("DistanceY", -1, 1, 0, 2, 8.35),
])
sketch12.setExpression("Constraints[9]", "Params.sketch12_width")
pad10 = body9.newObject("PartDesign::Pad", "Pad009")
pad10.Profile = sketch12
pad10.setExpression("Length", "Params.pad10_length")
body10 = doc.addObject("PartDesign::Body", "Body009")

# Sketch on XY plane
sketch13 = body10.newObject("Sketcher::SketchObject", "Sketch012")
sketch13.AttachmentSupport = (doc.getObject("XY_Plane009"), [""])
sketch13.MapMode = "FlatFace"
sketch13.AttachmentOffset = App.Placement(App.Vector(0, 0, 1.6), App.Rotation())
sketch13.addGeometry([
    Part.LineSegment(App.Vector(36, 19, 0), App.Vector(36, 12, 0)),
    Part.LineSegment(App.Vector(36, 12, 0), App.Vector(41, 12, 0)),
    Part.LineSegment(App.Vector(41, 12, 0), App.Vector(41, 19, 0)),
    Part.LineSegment(App.Vector(41, 19, 0), App.Vector(36, 19, 0)),
], False)
sketch13.addConstraint([
    Sketcher.Constraint("Coincident", 0, 2, 1, 1),
    Sketcher.Constraint("Coincident", 1, 2, 2, 1),
    Sketcher.Constraint("Coincident", 2, 2, 3, 1),
    Sketcher.Constraint("Coincident", 3, 2, 0, 1),
    Sketcher.Constraint("Vertical", 0),
    Sketcher.Constraint("Horizontal", 1),
    Sketcher.Constraint("Vertical", 2),
    Sketcher.Constraint("Horizontal", 3),
    Sketcher.Constraint("DistanceX", 1, 1, 1, 2, 5.0),
    Sketcher.Constraint("DistanceY", 0, 2, 0, 1, 7.0),
    Sketcher.Constraint("DistanceX", -1, 1, 0, 2, 36.0),
    Sketcher.Constraint("DistanceY", -1, 1, 0, 2, 11.8),
])
sketch13.setExpression("Constraints[8]", "Params.sketch13_width")
sketch13.setExpression("Constraints[9]", "Params.sketch13_height")
pad11 = body10.newObject("PartDesign::Pad", "Pad010")
pad11.Profile = sketch13
pad11.setExpression("Length", "Params.pad11_length")

doc.recompute()
